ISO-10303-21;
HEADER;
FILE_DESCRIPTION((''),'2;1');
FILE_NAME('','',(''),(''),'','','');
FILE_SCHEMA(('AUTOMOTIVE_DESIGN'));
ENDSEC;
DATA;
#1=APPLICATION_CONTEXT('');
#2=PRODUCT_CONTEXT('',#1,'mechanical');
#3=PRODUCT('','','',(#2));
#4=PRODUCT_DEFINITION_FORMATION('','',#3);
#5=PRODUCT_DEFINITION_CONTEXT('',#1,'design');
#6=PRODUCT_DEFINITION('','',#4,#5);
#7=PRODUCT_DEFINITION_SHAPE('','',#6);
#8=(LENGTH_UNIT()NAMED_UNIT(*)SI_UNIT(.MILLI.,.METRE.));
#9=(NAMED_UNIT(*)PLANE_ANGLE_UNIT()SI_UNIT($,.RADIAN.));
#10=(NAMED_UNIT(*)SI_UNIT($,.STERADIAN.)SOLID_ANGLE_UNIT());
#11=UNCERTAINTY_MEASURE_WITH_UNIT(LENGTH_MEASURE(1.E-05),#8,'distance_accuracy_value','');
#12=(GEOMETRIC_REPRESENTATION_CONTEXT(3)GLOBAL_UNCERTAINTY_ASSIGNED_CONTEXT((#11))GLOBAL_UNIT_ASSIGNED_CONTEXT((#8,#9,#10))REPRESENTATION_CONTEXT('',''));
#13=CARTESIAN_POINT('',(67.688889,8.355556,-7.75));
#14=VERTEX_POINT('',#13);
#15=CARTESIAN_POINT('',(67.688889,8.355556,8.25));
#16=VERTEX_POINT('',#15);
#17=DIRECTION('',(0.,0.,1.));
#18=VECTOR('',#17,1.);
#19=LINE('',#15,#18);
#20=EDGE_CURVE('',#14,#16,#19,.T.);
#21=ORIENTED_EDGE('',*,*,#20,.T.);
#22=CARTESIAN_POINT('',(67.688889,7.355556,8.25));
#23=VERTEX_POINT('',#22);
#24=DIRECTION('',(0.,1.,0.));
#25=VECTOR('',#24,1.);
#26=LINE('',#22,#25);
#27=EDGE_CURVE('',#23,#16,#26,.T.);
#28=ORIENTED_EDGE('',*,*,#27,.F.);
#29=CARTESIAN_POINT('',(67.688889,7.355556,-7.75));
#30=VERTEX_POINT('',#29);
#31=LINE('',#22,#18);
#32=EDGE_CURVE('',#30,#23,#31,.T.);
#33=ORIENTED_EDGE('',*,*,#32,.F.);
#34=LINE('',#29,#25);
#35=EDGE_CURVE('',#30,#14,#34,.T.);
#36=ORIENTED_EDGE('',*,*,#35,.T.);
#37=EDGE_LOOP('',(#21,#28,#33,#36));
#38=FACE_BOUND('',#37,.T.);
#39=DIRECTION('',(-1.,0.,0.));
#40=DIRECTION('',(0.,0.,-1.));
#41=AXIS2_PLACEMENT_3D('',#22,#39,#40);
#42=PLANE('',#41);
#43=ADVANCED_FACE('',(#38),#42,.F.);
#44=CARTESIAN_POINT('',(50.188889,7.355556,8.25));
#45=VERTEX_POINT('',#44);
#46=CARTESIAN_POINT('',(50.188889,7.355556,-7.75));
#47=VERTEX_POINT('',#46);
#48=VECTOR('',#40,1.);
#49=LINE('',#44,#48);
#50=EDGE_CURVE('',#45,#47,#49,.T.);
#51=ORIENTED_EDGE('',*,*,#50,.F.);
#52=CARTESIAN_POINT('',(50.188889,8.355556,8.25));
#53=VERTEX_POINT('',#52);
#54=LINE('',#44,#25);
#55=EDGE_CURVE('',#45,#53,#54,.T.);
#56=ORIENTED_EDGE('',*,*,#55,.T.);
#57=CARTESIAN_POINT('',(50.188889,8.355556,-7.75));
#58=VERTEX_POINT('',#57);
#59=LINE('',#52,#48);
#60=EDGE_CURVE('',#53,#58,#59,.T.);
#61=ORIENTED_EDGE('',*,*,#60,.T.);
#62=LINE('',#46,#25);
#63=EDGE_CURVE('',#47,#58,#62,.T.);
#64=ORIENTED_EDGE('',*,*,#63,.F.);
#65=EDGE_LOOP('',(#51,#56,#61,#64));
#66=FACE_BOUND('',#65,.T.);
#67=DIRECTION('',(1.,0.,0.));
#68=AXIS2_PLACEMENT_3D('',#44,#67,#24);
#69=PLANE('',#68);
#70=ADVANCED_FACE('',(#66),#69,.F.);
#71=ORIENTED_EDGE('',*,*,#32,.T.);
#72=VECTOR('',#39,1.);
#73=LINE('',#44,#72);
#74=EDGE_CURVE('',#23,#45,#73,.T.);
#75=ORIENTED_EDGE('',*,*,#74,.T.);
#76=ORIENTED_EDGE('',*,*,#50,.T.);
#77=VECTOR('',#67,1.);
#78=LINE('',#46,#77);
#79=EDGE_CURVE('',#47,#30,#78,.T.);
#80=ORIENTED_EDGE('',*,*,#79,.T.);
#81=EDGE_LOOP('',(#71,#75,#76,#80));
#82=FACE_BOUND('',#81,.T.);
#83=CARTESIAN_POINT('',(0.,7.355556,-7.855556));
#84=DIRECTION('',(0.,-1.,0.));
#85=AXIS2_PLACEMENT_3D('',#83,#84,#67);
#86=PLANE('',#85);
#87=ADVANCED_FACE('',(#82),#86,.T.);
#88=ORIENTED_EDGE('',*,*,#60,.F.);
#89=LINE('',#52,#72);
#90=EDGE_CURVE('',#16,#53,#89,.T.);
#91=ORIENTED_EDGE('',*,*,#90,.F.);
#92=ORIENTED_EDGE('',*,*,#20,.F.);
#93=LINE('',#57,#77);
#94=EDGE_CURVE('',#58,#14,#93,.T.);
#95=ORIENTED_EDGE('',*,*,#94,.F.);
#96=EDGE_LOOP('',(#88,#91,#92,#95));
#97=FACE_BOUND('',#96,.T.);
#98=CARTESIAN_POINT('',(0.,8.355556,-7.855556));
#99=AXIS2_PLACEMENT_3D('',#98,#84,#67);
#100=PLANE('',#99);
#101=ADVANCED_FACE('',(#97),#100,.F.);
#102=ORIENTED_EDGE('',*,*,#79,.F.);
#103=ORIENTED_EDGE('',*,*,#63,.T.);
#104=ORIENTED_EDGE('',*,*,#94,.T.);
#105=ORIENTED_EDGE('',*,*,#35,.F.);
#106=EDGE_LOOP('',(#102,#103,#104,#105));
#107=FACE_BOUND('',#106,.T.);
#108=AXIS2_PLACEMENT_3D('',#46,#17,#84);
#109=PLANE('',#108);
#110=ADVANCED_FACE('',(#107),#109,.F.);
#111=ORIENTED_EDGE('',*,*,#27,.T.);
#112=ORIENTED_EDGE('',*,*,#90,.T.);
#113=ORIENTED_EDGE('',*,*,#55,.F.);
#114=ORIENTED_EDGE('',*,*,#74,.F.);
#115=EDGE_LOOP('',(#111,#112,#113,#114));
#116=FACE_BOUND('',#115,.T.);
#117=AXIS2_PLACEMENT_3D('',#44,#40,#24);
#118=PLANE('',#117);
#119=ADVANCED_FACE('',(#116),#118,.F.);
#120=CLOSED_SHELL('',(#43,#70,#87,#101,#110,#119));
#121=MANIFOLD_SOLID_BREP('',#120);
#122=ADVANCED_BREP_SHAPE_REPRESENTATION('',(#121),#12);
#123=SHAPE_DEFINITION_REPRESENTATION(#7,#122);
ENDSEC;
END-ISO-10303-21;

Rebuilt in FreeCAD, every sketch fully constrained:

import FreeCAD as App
import Part
import Sketcher


def add_polygon(sketch, points):
    """Adds a closed chain of lines whose ends are joined by coincident constraints."""
    first, n = sketch.GeometryCount, len(points)
    for a, b in zip(points, points[1:] + points[:1]):
        sketch.addGeometry(Part.LineSegment(App.Vector(*a, 0), App.Vector(*b, 0)), False)
    for i in range(n):
        sketch.addConstraint(Sketcher.Constraint("Coincident", first + i, 2, first + (i + 1) % n, 1))

doc = App.newDocument("Part")
params = doc.addObject("Spreadsheet::Sheet", "Params")
for row, (alias, value) in enumerate([
    ("sketch1_height", "16 mm"),
    ("sketch1_width", "17.5 mm"),
    ("pad1_length", "1 mm"),
], start=1):
    params.set(f"A{row}", alias)
    params.set(f"B{row}", "=" + value)
    params.setAlias(f"B{row}", alias)

body = doc.addObject("PartDesign::Body", "Body")

sketch1 = body.newObject("Sketcher::SketchObject", "Sketch")
sketch1.AttachmentSupport = (doc.getObject("XY_Plane"), [""])
sketch1.MapMode = "FlatFace"
add_polygon(sketch1, [(50, 16), (50, 0), (68, 0), (68, 16)])
sketch1.addConstraint([
    Sketcher.Constraint("Vertical", 0),
    Sketcher.Constraint("Horizontal", 1),
    Sketcher.Constraint("Vertical", 2),
    Sketcher.Constraint("Horizontal", 3),
    Sketcher.Constraint("DistanceY", 0, 2, 0, 1, 16.0),
    Sketcher.Constraint("DistanceX", 1, 1, 1, 2, 17.5),
    Sketcher.Constraint("DistanceX", -1, 1, 0, 2, 50.188889),
    Sketcher.Constraint("DistanceY", -1, 1, 0, 2, 0.105556),
])
sketch1.setExpression("Constraints[8]", "Params.sketch1_height")
sketch1.setExpression("Constraints[9]", "Params.sketch1_width")
pad1 = body.newObject("PartDesign::Pad", "Pad")
pad1.Profile = sketch1
pad1.setExpression("Length", "Params.pad1_length")
body2 = doc.addObject("PartDesign::Body", "Body001")
doc.recompute()

body.Placement = App.Placement(App.Vector(0, 8.355556, -7.855556), App.Rotation(App.Vector(1, 0, 0), 90))
boolean = body2.newObject("PartDesign::Boolean", "Boolean")
boolean.Type = "Fuse"
boolean.addObjects([body])

doc.recompute()
